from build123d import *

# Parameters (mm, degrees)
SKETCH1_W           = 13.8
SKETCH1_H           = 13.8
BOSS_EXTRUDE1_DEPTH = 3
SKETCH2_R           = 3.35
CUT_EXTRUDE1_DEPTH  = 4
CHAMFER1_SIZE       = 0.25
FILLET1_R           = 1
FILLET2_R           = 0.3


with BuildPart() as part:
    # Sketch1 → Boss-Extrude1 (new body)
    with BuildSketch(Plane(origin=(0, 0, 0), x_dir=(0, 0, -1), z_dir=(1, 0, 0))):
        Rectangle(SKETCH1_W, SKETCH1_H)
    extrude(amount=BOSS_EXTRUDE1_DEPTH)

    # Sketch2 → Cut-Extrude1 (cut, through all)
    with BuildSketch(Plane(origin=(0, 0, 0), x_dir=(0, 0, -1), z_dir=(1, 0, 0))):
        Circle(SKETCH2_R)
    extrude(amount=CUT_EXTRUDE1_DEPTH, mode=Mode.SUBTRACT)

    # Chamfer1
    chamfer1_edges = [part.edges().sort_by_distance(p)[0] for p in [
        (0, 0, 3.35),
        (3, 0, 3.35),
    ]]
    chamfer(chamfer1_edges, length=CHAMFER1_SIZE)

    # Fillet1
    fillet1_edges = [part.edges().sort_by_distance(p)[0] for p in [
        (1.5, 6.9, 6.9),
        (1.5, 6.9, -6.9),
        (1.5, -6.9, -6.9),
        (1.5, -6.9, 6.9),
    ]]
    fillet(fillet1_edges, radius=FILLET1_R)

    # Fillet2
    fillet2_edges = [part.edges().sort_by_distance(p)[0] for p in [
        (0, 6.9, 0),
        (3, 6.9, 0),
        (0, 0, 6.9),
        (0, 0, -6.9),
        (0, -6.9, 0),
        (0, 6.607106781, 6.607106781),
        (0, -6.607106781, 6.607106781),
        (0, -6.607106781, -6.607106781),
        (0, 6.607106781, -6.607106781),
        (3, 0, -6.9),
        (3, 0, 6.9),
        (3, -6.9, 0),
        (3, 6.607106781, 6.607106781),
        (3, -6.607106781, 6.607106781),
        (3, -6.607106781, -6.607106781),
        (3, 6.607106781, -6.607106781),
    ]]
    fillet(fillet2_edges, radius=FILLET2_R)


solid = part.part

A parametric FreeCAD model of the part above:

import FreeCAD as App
import Part
import Sketcher
Q = App.Units.Quantity


def edges_at(feature, points):
    """Names of the edges that pass closest to the given points."""
    edges = feature.Shape.Edges
    near = lambda p: min(range(len(edges)), key=lambda i: edges[i].distToShape(Part.Vertex(*p))[0])
    return sorted({f"Edge{near(p) + 1}" for p in points})

doc = App.newDocument("Part")
params = doc.addObject("Spreadsheet::Sheet", "Params")
for row, (alias, value) in enumerate([
    ("sketch1_width", "13.8 mm"),
    ("pad1_length", "3 mm"),
    ("sketch2_diameter", "6.7 mm"),
    ("chamfer_size", "0.25 mm"),
    ("fillet_radius", "1 mm"),
    ("fillet2_radius", "0.3 mm"),
], start=1):
    params.set(f"A{row}", alias)
    params.set(f"B{row}", "=" + value)
    params.setAlias(f"B{row}", alias)

body = doc.addObject("PartDesign::Body", "Body")

# Sketch on YZ plane
sketch1 = body.newObject("Sketcher::SketchObject", "Sketch")
sketch1.AttachmentSupport = (doc.getObject("YZ_Plane"), [""])
sketch1.MapMode = "FlatFace"
sketch1.addGeometry([
    Part.LineSegment(App.Vector(7, 7, 0), App.Vector(-7, 7, 0)),
    Part.LineSegment(App.Vector(-7, 7, 0), App.Vector(-7, -7, 0)),
    Part.LineSegment(App.Vector(-7, -7, 0), App.Vector(7, -7, 0)),
    Part.LineSegment(App.Vector(7, -7, 0), App.Vector(7, 7, 0)),
], False)
sketch1.addConstraint([
    Sketcher.Constraint("Coincident", 0, 2, 1, 1),
    Sketcher.Constraint("Coincident", 1, 2, 2, 1),
    Sketcher.Constraint("Coincident", 2, 2, 3, 1),
    Sketcher.Constraint("Coincident", 3, 2, 0, 1),
    Sketcher.Constraint("Horizontal", 0),
    Sketcher.Constraint("Vertical", 1),
    Sketcher.Constraint("Horizontal", 2),
    Sketcher.Constraint("Vertical", 3),
    Sketcher.Constraint("Symmetric", 0, 2, 2, 2, -1, 1),
    Sketcher.Constraint("Equal", 2, 1),
    Sketcher.Constraint("DistanceX", 0, 2, 0, 1, Q("13.8 mm")),
])
sketch1.setExpression("Constraints[10]", "Params.sketch1_width")
pad1 = body.newObject("PartDesign::Pad", "Pad")
pad1.Profile = sketch1
pad1.setExpression("Length", "Params.pad1_length")

# Sketch on YZ plane
sketch2 = body.newObject("Sketcher::SketchObject", "Sketch001")
sketch2.AttachmentSupport = (doc.getObject("YZ_Plane"), [""])
sketch2.MapMode = "FlatFace"
sketch2.addGeometry(Part.Circle(App.Vector(0, 0, 0), App.Vector(0, 0, 1), 3.4), False)
sketch2.addConstraint([
    Sketcher.Constraint("Coincident", 0, 3, -1, 1),
    Sketcher.Constraint("Diameter", 0, Q("6.7 mm")),
])
sketch2.setExpression("Constraints[1]", "Params.sketch2_diameter")
pocket1 = body.newObject("PartDesign::Pocket", "Pocket")
pocket1.Profile = sketch2
pocket1.Type = "ThroughAll"
pocket1.Reversed = True
doc.recompute()

chamfer = body.newObject("PartDesign::Chamfer", "Chamfer")
chamfer.Base = (pocket1, edges_at(pocket1, [(0, 0, 3.35), (3, 0, 3.35)]))
chamfer.setExpression("Size", "Params.chamfer_size")
doc.recompute()

fillet = body.newObject("PartDesign::Fillet", "Fillet")
fillet.Base = (chamfer, edges_at(chamfer, [
    (1.5, 6.9, 6.9),
    (1.5, 6.9, -6.9),
    (1.5, -6.9, -6.9),
    (1.5, -6.9, 6.9),
]))
fillet.setExpression("Radius", "Params.fillet_radius")
doc.recompute()

fillet2 = body.newObject("PartDesign::Fillet", "Fillet001")
fillet2.Base = (fillet, edges_at(fillet, [
    (0, 6.9, 0),
    (3, 6.9, 0),
    (0, 0, 6.9),
    (0, 0, -6.9),
    (0, -6.9, 0),
    (0, 6.607, 6.607),
    (0, -6.607, 6.607),
    (0, -6.607, -6.607),
    (0, 6.607, -6.607),
    (3, 0, -6.9),
    (3, 0, 6.9),
    (3, -6.9, 0),
    (3, 6.607, 6.607),
    (3, -6.607, 6.607),
    (3, -6.607, -6.607),
    (3, 6.607, -6.607),
]))
fillet2.setExpression("Radius", "Params.fillet2_radius")

doc.recompute()
